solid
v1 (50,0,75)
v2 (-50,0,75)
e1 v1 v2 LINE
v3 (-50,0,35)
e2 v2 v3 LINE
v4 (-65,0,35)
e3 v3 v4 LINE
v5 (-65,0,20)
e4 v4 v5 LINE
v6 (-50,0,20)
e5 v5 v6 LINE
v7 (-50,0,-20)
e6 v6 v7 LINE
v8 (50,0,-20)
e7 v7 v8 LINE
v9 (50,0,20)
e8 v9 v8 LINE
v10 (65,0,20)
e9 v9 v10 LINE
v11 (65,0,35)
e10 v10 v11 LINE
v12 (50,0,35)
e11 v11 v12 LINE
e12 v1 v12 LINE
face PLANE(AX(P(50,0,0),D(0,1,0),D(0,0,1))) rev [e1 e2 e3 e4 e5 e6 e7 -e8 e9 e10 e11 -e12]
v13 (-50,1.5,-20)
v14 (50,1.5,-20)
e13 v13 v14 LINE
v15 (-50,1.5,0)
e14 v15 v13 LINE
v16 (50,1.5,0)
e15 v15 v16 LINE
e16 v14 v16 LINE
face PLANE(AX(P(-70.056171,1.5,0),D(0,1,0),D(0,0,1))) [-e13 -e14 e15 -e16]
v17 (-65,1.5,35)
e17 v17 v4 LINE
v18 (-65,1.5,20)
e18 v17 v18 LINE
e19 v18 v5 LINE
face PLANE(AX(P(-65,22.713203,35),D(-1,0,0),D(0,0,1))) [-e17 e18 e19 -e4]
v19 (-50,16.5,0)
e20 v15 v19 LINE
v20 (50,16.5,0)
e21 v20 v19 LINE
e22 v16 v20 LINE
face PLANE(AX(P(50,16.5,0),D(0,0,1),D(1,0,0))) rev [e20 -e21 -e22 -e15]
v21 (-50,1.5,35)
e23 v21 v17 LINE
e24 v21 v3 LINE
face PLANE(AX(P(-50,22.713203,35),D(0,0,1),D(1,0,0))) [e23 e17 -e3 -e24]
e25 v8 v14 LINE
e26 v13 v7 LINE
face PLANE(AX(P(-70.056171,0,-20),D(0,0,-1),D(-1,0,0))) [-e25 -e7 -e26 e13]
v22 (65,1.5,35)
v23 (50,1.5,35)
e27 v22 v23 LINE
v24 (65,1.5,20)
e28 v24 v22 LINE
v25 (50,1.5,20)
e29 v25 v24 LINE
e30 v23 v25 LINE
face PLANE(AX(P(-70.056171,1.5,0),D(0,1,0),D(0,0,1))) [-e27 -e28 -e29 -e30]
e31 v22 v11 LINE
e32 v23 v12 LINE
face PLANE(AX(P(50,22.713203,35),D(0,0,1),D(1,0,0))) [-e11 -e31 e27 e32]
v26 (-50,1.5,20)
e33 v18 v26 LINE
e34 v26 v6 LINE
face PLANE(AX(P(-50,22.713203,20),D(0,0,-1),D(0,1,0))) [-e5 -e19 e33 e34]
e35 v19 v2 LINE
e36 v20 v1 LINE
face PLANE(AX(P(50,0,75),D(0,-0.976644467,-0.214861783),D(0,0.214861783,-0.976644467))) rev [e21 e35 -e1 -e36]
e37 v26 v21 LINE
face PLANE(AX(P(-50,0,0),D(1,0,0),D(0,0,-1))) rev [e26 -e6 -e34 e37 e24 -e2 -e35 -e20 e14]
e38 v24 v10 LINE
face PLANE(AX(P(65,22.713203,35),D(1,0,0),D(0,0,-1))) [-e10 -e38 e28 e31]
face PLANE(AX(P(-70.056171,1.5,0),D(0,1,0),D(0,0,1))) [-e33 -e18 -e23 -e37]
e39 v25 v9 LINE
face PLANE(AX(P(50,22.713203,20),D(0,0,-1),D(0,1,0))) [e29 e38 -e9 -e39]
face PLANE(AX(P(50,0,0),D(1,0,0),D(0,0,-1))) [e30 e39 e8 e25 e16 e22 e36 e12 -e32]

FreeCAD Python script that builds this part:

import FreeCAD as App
import Part
import Sketcher
from FreeCAD import Vector
Q = App.Units.Quantity

doc = App.newDocument("Part")
body = doc.addObject("PartDesign::Body", "Body")

# Sketch on YZ plane
sketch1 = body.newObject("Sketcher::SketchObject", "Sketch")
sketch1.AttachmentSupport = (doc.getObject("YZ_Plane"), [""])
sketch1.MapMode = "FlatFace"
sketch1.addGeometry([
    Part.LineSegment(Vector(16, 0, 0), Vector(0, 75, 0)),
    Part.LineSegment(Vector(0, 75, 0), Vector(0, 0, 0)),
    Part.LineSegment(Vector(0, 0, 0), Vector(16, 0, 0)),
], False)
sketch1.addConstraint([
    Sketcher.Constraint("Coincident", 0, 2, 1, 1),
    Sketcher.Constraint("Coincident", 1, 2, 2, 1),
    Sketcher.Constraint("Coincident", 2, 2, 0, 1),
    Sketcher.Constraint("Vertical", 1),
    Sketcher.Constraint("Horizontal", 2),
    Sketcher.Constraint("Coincident", 1, 2, -1, 1),
    Sketcher.Constraint("DistanceY", 1, 2, 1, 1, Q("75 mm")),
    Sketcher.Constraint("DistanceX", 2, 1, 2, 2, Q("16.5 mm")),
])
pad1 = body.newObject("PartDesign::Pad", "Pad")
pad1.Profile = sketch1
pad1.Length = 100
pad1.Midplane = True

# Sketch on YZ plane
sketch2 = body.newObject("Sketcher::SketchObject", "Sketch001")
sketch2.AttachmentSupport = (doc.getObject("YZ_Plane"), [""])
sketch2.MapMode = "FlatFace"
sketch2.AttachmentOffset = App.Placement(Vector(0, 0, 50), App.Rotation())
sketch2.addGeometry([
    Part.LineSegment(Vector(1.5, 0, 0), Vector(0, 0, 0)),
    Part.LineSegment(Vector(0, 0, 0), Vector(0, -20, 0)),
    Part.LineSegment(Vector(0, -20, 0), Vector(1.5, -20, 0)),
    Part.LineSegment(Vector(1.5, -20, 0), Vector(1.5, 0, 0)),
], False)
sketch2.addConstraint([
    Sketcher.Constraint("Coincident", 0, 2, 1, 1),
    Sketcher.Constraint("Coincident", 1, 2, 2, 1),
    Sketcher.Constraint("Coincident", 2, 2, 3, 1),
    Sketcher.Constraint("Coincident", 3, 2, 0, 1),
    Sketcher.Constraint("Horizontal", 0),
    Sketcher.Constraint("Vertical", 1),
    Sketcher.Constraint("Horizontal", 2),
    Sketcher.Constraint("Vertical", 3),
    Sketcher.Constraint("Coincident", 0, 2, -1, 1),
    Sketcher.Constraint("DistanceY", 1, 2, 1, 1, Q("20 mm")),
    Sketcher.Constraint("DistanceX", 0, 2, 0, 1, Q("1.5 mm")),
])
pad2 = body.newObject("PartDesign::Pad", "Pad001")
pad2.Profile = sketch2
pad2.Length = 100
pad2.Reversed = True

# Sketch on XZ plane
sketch3 = body.newObject("Sketcher::SketchObject", "Sketch002")
sketch3.AttachmentSupport = (doc.getObject("XZ_Plane"), [""])
sketch3.MapMode = "FlatFace"
sketch3.addGeometry([
    Part.LineSegment(Vector(50, 35, 0), Vector(50, 20, 0)),  # 0
    Part.LineSegment(Vector(50, 20, 0), Vector(65, 20, 0)),  # 1
    Part.LineSegment(Vector(65, 20, 0), Vector(65, 35, 0)),  # 2
    Part.LineSegment(Vector(65, 35, 0), Vector(50, 35, 0)),  # 3
    Part.LineSegment(Vector(-65, 35, 0), Vector(-65, 20, 0)),  # 4
    Part.LineSegment(Vector(-65, 20, 0), Vector(-50, 20, 0)),  # 5
    Part.LineSegment(Vector(-50, 20, 0), Vector(-50, 35, 0)),  # 6
    Part.LineSegment(Vector(-50, 35, 0), Vector(-65, 35, 0)),  # 7
], False)
sketch3.addConstraint([
    Sketcher.Constraint("Coincident", 0, 2, 1, 1),
    Sketcher.Constraint("Coincident", 1, 2, 2, 1),
    Sketcher.Constraint("Coincident", 2, 2, 3, 1),
    Sketcher.Constraint("Coincident", 3, 2, 0, 1),
    Sketcher.Constraint("Coincident", 4, 2, 5, 1),
    Sketcher.Constraint("Coincident", 5, 2, 6, 1),
    Sketcher.Constraint("Coincident", 6, 2, 7, 1),
    Sketcher.Constraint("Coincident", 7, 2, 4, 1),
    Sketcher.Constraint("Vertical", 0),
    Sketcher.Constraint("Horizontal", 1),
    Sketcher.Constraint("Vertical", 2),
    Sketcher.Constraint("Horizontal", 3),
    Sketcher.Constraint("Vertical", 4),
    Sketcher.Constraint("Horizontal", 5),
    Sketcher.Constraint("Vertical", 6),
    Sketcher.Constraint("Horizontal", 7),
    Sketcher.Constraint("Symmetric", 1, 2, 4, 2, -2),
    Sketcher.Constraint("Symmetric", 3, 2, 6, 2, -2),
    Sketcher.Constraint("Equal", 7, 0),
    Sketcher.Constraint("DistanceX", 1, 1, 1, 2, Q("15 mm")),
    Sketcher.Constraint("DistanceX", -1, 1, 0, 2, Q("50 mm")),
    Sketcher.Constraint("DistanceY", -1, 1, 0, 2, Q("20 mm")),
])
pad3 = body.newObject("PartDesign::Pad", "Pad002")
pad3.Profile = sketch3
pad3.Length = 1.5
pad3.Reversed = True

doc.recompute()
